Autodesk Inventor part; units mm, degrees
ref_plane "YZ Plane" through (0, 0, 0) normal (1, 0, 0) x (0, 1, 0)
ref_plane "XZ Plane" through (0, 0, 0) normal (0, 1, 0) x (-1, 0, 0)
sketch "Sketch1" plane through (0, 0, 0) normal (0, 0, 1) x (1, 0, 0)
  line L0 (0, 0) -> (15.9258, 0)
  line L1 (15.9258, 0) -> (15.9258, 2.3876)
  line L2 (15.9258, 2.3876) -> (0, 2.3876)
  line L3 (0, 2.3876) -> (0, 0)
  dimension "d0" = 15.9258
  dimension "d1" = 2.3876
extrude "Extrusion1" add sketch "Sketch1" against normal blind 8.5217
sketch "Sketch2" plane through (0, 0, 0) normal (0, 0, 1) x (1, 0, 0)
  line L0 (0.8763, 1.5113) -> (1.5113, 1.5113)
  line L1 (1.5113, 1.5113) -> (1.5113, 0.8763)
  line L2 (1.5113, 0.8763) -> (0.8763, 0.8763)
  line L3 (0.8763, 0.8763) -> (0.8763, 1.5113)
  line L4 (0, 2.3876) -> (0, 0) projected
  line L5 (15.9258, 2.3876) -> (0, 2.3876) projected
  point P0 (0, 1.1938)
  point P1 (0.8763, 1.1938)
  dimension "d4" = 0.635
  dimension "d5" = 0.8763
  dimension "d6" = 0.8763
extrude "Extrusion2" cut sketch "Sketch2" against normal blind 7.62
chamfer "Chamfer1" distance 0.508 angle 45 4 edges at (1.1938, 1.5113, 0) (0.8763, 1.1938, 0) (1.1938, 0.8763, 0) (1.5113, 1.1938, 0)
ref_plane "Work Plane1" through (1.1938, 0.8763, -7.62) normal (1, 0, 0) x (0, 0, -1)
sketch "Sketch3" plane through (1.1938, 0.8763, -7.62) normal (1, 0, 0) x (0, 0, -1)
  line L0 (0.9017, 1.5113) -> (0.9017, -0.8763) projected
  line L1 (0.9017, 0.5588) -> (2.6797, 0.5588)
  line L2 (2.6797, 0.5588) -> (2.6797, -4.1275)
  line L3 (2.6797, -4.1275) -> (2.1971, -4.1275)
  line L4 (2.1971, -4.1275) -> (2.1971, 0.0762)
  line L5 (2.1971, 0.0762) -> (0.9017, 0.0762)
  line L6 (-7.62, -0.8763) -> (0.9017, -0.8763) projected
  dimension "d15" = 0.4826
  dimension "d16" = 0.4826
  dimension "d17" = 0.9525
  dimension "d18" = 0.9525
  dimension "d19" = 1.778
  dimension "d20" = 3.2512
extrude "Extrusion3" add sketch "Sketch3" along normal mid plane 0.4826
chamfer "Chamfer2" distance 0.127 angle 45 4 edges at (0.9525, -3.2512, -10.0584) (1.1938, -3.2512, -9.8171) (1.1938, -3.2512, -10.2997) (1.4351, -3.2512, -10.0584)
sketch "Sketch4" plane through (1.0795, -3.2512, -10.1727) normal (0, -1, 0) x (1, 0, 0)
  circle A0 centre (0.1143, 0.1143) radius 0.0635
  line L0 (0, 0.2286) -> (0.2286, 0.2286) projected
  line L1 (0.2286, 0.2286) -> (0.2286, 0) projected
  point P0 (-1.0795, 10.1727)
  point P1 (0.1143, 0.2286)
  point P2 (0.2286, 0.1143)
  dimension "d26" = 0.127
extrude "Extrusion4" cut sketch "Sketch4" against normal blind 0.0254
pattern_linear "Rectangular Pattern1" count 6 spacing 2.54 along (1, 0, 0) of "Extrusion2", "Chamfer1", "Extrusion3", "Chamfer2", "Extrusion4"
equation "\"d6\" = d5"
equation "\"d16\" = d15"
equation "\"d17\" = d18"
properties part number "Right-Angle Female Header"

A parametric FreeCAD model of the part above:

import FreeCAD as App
import Part
import Sketcher
from FreeCAD import Vector
Q = App.Units.Quantity


def edges_at(feature, points):
    """Names of the edges that pass closest to the given points."""
    edges = feature.Shape.Edges
    near = lambda p: min(range(len(edges)), key=lambda i: edges[i].distToShape(Part.Vertex(*p))[0])
    return sorted({f"Edge{near(p) + 1}" for p in points})


def add_polygon(sketch, points):
    """Adds a closed chain of lines whose ends are joined by coincident constraints."""
    first, n = sketch.GeometryCount, len(points)
    for a, b in zip(points, points[1:] + points[:1]):
        sketch.addGeometry(Part.LineSegment(App.Vector(*a, 0), App.Vector(*b, 0)), False)
    for i in range(n):
        sketch.addConstraint(Sketcher.Constraint("Coincident", first + i, 2, first + (i + 1) % n, 1))

doc = App.newDocument("Part")
body = doc.addObject("PartDesign::Body", "Body")

# Sketch on XY plane
sketch1 = body.newObject("Sketcher::SketchObject", "Sketch")
sketch1.AttachmentSupport = (doc.getObject("XY_Plane"), [""])
sketch1.MapMode = "FlatFace"
add_polygon(sketch1, [(0, 2.4), (0, 0), (15.9, 0), (15.9, 2.4)])  # lines 0-3
sketch1.addConstraint(Sketcher.Constraint("Vertical", 0))
sketch1.addConstraint(Sketcher.Constraint("Horizontal", 1))
sketch1.addConstraint(Sketcher.Constraint("Vertical", 2))
sketch1.addConstraint(Sketcher.Constraint("Horizontal", 3))
sketch1.addConstraint(Sketcher.Constraint("Coincident", 0, 2, -1, 1))
sketch1.addConstraint(Sketcher.Constraint("DistanceX", 1, 1, 1, 2, Q("0.627 in")))
sketch1.addConstraint(Sketcher.Constraint("DistanceY", 0, 2, 0, 1, Q("0.094 in")))
pad1 = body.newObject("PartDesign::Pad", "Pad")
pad1.Profile = sketch1
pad1.Length = Q("0.3355 in")
pad1.Reversed = True

# Sketch on XY plane
sketch2 = body.newObject("Sketcher::SketchObject", "Sketch001")
sketch2.AttachmentSupport = (doc.getObject("XY_Plane"), [""])
sketch2.MapMode = "FlatFace"
add_polygon(sketch2, [(1.5, 1.5), (0.9, 1.5), (0.9, 0.9), (1.5, 0.9)])  # lines 0-3
sketch2.addConstraint(Sketcher.Constraint("Horizontal", 0))
sketch2.addConstraint(Sketcher.Constraint("Vertical", 1))
sketch2.addConstraint(Sketcher.Constraint("Horizontal", 2))
sketch2.addConstraint(Sketcher.Constraint("Vertical", 3))
sketch2.addConstraint(Sketcher.Constraint("Equal", 2, 1))
sketch2.addConstraint(Sketcher.Constraint("DistanceX", 0, 2, 0, 1, Q("0.025 in")))
sketch2.addConstraint(Sketcher.Constraint("DistanceX", -1, 1, 0, 2, Q("0.0345 in")))
sketch2.addConstraint(Sketcher.Constraint("DistanceY", -1, 1, 1, 2, Q("0.0345 in")))
pocket1 = body.newObject("PartDesign::Pocket", "Pocket")
pocket1.Profile = sketch2
pocket1.Length = Q("0.3 in")
doc.recompute()

chamfer = body.newObject("PartDesign::Chamfer", "Chamfer")
chamfer.Base = (pocket1, edges_at(pocket1, [
    (1.194, 1.511, 0),
    (0.876, 1.194, 0),
    (1.194, 0.876, 0),
    (1.511, 1.194, 0),
]))
chamfer.Size = Q("0.02 in")

# Sketch on YZ plane
sketch3 = body.newObject("Sketcher::SketchObject", "Sketch002")
sketch3.AttachmentSupport = (doc.getObject("YZ_Plane"), [""])
sketch3.MapMode = "FlatFace"
sketch3.AttachmentOffset = App.Placement(Vector(0, 0, 0.047 * 25.4), App.Rotation())
add_polygon(sketch3, [(1.44, -10.3), (1.44, -8.52), (0.95, -8.52), (0.95, -9.82), (-3.25, -9.82), (-3.25, -10.3)])  # lines 0-5
sketch3.addConstraint(Sketcher.Constraint("Vertical", 0))
sketch3.addConstraint(Sketcher.Constraint("Horizontal", 1))
sketch3.addConstraint(Sketcher.Constraint("Vertical", 2))
sketch3.addConstraint(Sketcher.Constraint("Horizontal", 3))
sketch3.addConstraint(Sketcher.Constraint("Vertical", 4))
sketch3.addConstraint(Sketcher.Constraint("Horizontal", 5))
sketch3.addConstraint(Sketcher.Constraint("Equal", 1, 4))
sketch3.addConstraint(Sketcher.Constraint("DistanceY", 0, 1, 0, 2, Q("0.07 in")))
sketch3.addConstraint(Sketcher.Constraint("DistanceX", 1, 2, 1, 1, Q("0.019 in")))
sketch3.addConstraint(Sketcher.Constraint("DistanceX", 3, 2, -1, 1, Q("0.128 in")))
sketch3.addConstraint(Sketcher.Constraint("DistanceX", -1, 1, 1, 2, Q("0.0375 in")))
sketch3.addConstraint(Sketcher.Constraint("DistanceY", 0, 2, -1, 1, Q("0.3355 in")))
pad2 = body.newObject("PartDesign::Pad", "Pad001")
pad2.Profile = sketch3
pad2.Length = Q("0.019 in")
pad2.Midplane = True
doc.recompute()

chamfer2 = body.newObject("PartDesign::Chamfer", "Chamfer001")
chamfer2.Base = (pad2, edges_at(pad2, [
    (0.953, -3.251, -10.058),
    (1.194, -3.251, -9.817),
    (1.194, -3.251, -10.3),
    (1.435, -3.251, -10.058),
]))
chamfer2.Size = Q("0.005 in")

# Sketch on XZ plane
sketch4 = body.newObject("Sketcher::SketchObject", "Sketch003")
sketch4.AttachmentSupport = (doc.getObject("XZ_Plane"), [""])
sketch4.MapMode = "FlatFace"
sketch4.AttachmentOffset = App.Placement(Vector(0, 0, 0.128 * 25.4), App.Rotation())
sketch4.addGeometry(Part.Circle(Vector(1.19, -10.06, 0), Vector(0, 0, 1), 0.06), False)
sketch4.addConstraint(Sketcher.Constraint("Diameter", 0, Q("0.005 in")))
sketch4.addConstraint(Sketcher.Constraint("DistanceX", -1, 1, 0, 3, Q("0.047 in")))
sketch4.addConstraint(Sketcher.Constraint("DistanceY", 0, 3, -1, 1, Q("0.396 in")))
pocket2 = body.newObject("PartDesign::Pocket", "Pocket001")
pocket2.Profile = sketch4
pocket2.Length = Q("0.001 in")
doc.recompute()

linearpattern = body.newObject("PartDesign::LinearPattern", "LinearPattern")
linearpattern.Originals = [pocket1, chamfer, pad2, chamfer2, pocket2]
linearpattern.Direction = (doc.getObject("X_Axis"), [""])
linearpattern.Mode = "offset"
linearpattern.Offset = Q("0.1 in")
linearpattern.Occurrences = 6
body.Tip = linearpattern

doc.recompute()
